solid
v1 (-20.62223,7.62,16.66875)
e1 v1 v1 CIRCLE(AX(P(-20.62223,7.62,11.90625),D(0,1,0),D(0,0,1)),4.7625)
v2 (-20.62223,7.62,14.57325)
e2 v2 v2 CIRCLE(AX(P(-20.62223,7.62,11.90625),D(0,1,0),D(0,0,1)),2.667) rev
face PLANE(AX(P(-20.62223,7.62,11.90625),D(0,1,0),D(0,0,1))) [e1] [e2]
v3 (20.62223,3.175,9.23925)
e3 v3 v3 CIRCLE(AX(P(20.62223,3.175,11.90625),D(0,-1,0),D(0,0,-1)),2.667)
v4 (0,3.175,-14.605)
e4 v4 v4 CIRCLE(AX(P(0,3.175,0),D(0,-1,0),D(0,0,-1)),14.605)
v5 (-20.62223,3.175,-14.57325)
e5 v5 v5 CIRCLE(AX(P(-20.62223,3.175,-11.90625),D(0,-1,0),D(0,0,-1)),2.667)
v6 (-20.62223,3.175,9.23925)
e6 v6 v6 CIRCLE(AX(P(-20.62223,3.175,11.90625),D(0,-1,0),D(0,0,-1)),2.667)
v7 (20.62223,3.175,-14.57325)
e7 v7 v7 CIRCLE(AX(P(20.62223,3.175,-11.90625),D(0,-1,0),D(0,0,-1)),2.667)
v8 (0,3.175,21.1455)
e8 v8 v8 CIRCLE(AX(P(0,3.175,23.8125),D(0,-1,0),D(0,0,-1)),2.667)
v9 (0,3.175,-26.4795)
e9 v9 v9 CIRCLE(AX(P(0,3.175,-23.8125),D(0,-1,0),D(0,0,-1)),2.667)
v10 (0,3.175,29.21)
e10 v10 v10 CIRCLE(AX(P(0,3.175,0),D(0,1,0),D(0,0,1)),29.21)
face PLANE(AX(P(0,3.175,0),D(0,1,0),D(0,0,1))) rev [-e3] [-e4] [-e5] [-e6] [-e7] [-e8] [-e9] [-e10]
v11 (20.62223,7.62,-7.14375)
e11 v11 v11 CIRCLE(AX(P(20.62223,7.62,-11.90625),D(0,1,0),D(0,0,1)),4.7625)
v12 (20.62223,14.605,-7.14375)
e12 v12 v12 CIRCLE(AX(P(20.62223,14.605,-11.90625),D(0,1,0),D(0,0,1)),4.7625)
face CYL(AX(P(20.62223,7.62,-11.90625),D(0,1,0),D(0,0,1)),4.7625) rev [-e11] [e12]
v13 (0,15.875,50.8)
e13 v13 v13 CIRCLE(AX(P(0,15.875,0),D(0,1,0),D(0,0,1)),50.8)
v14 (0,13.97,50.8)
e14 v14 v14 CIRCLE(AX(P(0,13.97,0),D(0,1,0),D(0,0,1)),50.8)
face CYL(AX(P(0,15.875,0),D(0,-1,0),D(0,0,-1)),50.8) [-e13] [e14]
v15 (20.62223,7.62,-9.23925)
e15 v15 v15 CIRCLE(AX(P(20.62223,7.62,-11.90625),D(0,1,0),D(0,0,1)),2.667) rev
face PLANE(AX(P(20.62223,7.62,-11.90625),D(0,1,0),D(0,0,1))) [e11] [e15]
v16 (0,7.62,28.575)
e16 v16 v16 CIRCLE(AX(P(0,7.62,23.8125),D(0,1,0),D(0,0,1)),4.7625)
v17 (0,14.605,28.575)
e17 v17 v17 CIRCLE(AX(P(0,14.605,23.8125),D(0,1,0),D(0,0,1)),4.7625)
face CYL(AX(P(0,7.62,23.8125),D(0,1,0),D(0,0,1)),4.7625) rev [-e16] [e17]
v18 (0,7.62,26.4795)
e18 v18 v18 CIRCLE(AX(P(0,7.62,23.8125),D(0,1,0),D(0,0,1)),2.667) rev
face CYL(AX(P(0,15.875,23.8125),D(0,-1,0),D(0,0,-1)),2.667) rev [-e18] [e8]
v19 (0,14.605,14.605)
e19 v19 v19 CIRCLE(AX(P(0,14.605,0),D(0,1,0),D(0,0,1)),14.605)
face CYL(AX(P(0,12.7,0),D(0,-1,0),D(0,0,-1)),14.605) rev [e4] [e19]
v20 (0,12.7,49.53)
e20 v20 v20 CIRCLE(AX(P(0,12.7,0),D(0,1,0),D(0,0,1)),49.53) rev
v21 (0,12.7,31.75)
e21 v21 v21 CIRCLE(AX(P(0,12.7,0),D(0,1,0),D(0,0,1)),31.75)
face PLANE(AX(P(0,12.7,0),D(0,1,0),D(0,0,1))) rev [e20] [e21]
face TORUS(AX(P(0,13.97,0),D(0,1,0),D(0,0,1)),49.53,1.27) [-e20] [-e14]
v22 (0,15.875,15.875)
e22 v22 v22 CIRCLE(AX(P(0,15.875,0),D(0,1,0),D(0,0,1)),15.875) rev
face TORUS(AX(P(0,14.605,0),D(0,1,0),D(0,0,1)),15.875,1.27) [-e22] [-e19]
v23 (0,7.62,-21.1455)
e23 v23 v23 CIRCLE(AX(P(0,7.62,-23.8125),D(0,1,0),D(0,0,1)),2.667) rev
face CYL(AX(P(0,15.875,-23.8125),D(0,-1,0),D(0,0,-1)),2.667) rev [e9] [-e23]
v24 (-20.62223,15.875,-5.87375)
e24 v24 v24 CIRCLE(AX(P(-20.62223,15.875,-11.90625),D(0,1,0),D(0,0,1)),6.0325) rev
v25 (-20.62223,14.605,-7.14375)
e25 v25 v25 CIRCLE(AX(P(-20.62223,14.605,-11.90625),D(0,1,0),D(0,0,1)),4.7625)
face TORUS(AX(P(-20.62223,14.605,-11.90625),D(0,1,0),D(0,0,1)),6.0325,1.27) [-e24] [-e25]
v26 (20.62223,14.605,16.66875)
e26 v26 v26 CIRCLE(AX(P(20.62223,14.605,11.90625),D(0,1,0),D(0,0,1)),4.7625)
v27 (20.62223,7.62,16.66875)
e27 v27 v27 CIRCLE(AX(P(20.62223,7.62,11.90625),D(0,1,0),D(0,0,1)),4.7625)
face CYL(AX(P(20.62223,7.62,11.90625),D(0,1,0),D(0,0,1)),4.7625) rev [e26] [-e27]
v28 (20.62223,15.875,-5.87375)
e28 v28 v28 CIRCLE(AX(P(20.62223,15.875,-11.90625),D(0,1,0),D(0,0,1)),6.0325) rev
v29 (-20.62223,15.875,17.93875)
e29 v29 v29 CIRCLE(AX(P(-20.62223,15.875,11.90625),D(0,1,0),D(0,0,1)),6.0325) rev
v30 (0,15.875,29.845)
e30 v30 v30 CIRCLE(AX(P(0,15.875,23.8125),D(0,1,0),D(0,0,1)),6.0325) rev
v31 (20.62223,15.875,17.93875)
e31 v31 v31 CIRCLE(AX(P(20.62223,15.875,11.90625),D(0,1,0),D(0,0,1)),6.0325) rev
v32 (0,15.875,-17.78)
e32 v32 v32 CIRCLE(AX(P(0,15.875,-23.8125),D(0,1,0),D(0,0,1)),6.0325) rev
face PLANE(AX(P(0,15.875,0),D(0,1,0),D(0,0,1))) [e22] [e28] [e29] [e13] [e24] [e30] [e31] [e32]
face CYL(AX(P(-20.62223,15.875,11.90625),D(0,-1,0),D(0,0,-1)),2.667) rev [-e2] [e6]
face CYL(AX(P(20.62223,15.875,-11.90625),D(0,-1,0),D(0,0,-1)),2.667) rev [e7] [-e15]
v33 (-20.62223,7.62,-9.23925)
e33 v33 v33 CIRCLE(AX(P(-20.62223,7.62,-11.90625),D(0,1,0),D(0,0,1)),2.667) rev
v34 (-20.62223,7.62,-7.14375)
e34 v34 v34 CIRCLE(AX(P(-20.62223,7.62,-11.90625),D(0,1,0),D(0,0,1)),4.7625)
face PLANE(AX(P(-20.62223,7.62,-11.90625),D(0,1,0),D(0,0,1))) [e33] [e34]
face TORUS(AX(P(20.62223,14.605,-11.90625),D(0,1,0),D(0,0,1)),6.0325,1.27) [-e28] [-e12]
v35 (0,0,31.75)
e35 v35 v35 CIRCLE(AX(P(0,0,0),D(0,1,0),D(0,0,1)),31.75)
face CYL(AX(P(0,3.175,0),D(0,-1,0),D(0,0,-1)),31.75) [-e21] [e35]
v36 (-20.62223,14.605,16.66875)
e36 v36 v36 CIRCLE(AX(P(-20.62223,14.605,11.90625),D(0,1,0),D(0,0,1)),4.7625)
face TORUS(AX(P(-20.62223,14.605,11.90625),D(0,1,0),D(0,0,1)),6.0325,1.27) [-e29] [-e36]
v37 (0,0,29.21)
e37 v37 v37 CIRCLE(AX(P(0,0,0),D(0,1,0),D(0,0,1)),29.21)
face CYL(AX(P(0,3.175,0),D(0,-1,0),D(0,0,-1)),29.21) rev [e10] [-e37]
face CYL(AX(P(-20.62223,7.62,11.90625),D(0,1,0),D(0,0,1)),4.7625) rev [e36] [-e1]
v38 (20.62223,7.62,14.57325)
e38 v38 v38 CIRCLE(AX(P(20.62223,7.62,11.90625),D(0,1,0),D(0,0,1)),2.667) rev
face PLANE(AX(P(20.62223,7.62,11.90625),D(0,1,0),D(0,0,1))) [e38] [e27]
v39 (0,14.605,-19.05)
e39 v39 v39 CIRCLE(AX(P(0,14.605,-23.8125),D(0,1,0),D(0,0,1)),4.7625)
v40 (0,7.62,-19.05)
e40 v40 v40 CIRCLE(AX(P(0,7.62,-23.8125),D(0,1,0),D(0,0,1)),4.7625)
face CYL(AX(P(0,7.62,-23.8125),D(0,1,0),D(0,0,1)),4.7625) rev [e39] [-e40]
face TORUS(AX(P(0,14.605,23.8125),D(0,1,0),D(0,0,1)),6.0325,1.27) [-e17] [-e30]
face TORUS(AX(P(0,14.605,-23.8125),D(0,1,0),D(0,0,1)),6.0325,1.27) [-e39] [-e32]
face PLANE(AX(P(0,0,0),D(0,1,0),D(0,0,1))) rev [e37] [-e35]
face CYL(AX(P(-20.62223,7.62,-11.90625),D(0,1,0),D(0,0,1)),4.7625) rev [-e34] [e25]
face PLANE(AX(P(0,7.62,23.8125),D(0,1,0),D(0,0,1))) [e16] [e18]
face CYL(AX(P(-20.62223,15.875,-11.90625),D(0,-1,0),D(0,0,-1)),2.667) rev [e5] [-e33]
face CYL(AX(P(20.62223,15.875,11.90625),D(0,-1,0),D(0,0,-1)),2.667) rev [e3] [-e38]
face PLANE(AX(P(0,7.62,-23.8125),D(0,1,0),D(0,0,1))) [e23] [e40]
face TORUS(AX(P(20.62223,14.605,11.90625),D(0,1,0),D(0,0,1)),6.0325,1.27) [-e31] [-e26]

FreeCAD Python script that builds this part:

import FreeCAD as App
import Part
import Sketcher
from FreeCAD import Vector
Q = App.Units.Quantity


def edges_at(feature, points):
    """Names of the edges that pass closest to the given points."""
    edges = feature.Shape.Edges
    near = lambda p: min(range(len(edges)), key=lambda i: edges[i].distToShape(Part.Vertex(*p))[0])
    return sorted({f"Edge{near(p) + 1}" for p in points})

doc = App.newDocument("Part")
body = doc.addObject("PartDesign::Body", "Body")

# Sketch on XZ plane
sketch1 = doc.addObject("Sketcher::SketchObject", "Sketch")
body.addObject(sketch1)
sketch1.AttachmentSupport = (doc.XZ_Plane, [""])
sketch1.MapMode = "FlatFace"
sketch1.addGeometry([
    Part.Circle(Vector(0, 0, 0), Vector(0, 0, 1), 32),
    Part.Circle(Vector(0, 0, 0), Vector(0, 0, 1), 29),
], False)
sketch1.addConstraint([
    Sketcher.Constraint("Coincident", 0, 3, -1, 1),
    Sketcher.Constraint("Coincident", 1, 3, -1, 1),
    Sketcher.Constraint("Diameter", 0, Q("2.5 in")),
    Sketcher.Constraint("Diameter", 1, Q("2.3 in")),
])
pad1 = doc.addObject("PartDesign::Pad", "Pad")
body.addObject(pad1)
pad1.Profile = sketch1
pad1.Length = Q("0.125 in")
pad1.Reversed = True

# Sketch on XZ plane
sketch2 = doc.addObject("Sketcher::SketchObject", "Sketch001")
body.addObject(sketch2)
sketch2.AttachmentSupport = (doc.XZ_Plane, [""])
sketch2.MapMode = "FlatFace"
sketch2.AttachmentOffset = App.Placement(Vector(0, 0, -0.125 * 25.4), App.Rotation())
sketch2.addGeometry(Part.Circle(Vector(0, 0, 0), Vector(0, 0, 1), 32), False)
sketch2.addConstraint([
    Sketcher.Constraint("Coincident", 0, 3, -1, 1),
    Sketcher.Constraint("Diameter", 0, Q("2.5 in")),
])
pad2 = doc.addObject("PartDesign::Pad", "Pad001")
body.addObject(pad2)
pad2.Profile = sketch2
pad2.Length = Q("0.375 in")
pad2.Reversed = True

# Sketch on XZ plane
sketch3 = doc.addObject("Sketcher::SketchObject", "Sketch002")
body.addObject(sketch3)
sketch3.AttachmentSupport = (doc.XZ_Plane, [""])
sketch3.MapMode = "FlatFace"
sketch3.AttachmentOffset = App.Placement(Vector(0, 0, -0.125 * 25.4), App.Rotation())
sketch3.addGeometry(Part.Circle(Vector(0, 0, 0), Vector(0, 0, 1), 15), False)
sketch3.addConstraint([
    Sketcher.Constraint("Coincident", 0, 3, -1, 1),
    Sketcher.Constraint("Diameter", 0, Q("1.15 in")),
])
pocket1 = doc.addObject("PartDesign::Pocket", "Pocket")
body.addObject(pocket1)
pocket1.Profile = sketch3
pocket1.Type = "ThroughAll"

# Sketch on XZ plane
sketch4 = doc.addObject("Sketcher::SketchObject", "Sketch003")
body.addObject(sketch4)
sketch4.AttachmentSupport = (doc.XZ_Plane, [""])
sketch4.MapMode = "FlatFace"
sketch4.AttachmentOffset = App.Placement(Vector(0, 0, -0.5 * 25.4), App.Rotation())
sketch4.addGeometry([
    Part.Circle(Vector(0, 0, 0), Vector(0, 0, 1), 51),
    Part.Circle(Vector(0, 0, 0), Vector(0, 0, 1), 15),
], False)
sketch4.addConstraint([
    Sketcher.Constraint("Coincident", 0, 3, -1, 1),
    Sketcher.Constraint("Coincident", 1, 3, -1, 1),
    Sketcher.Constraint("Diameter", 0, Q("4 in")),
    Sketcher.Constraint("Diameter", 1, Q("1.15 in")),
])
pad3 = doc.addObject("PartDesign::Pad", "Pad002")
body.addObject(pad3)
pad3.Profile = sketch4
pad3.Length = Q("0.125 in")
pad3.Reversed = True

# Sketch on XZ plane
sketch5 = doc.addObject("Sketcher::SketchObject", "Sketch004")
body.addObject(sketch5)
sketch5.AttachmentSupport = (doc.XZ_Plane, [""])
sketch5.MapMode = "FlatFace"
sketch5.AttachmentOffset = App.Placement(Vector(0, 0, -0.125 * 25.4), App.Rotation())
sketch5.addGeometry([
    Part.Circle(Vector(0, 23.8, 0), Vector(0, 0, 1), 2.7),  # 0
    Part.Circle(Vector(20.6, 11.9, 0), Vector(0, 0, 1), 2.7),  # 1
    Part.Circle(Vector(20.6, -11.9, 0), Vector(0, 0, 1), 2.7),  # 2
    Part.Circle(Vector(0, -23.8, 0), Vector(0, 0, 1), 2.7),  # 3
    Part.Circle(Vector(-20.6, -11.9, 0), Vector(0, 0, 1), 2.7),  # 4
    Part.Circle(Vector(-20.6, 11.9, 0), Vector(0, 0, 1), 2.7),  # 5
], False)
sketch5.addConstraint([
    Sketcher.Constraint("Equal", 0, 1),
    Sketcher.Constraint("Equal", 1, 2),
    Sketcher.Constraint("Equal", 2, 3),
    Sketcher.Constraint("Equal", 3, 4),
    Sketcher.Constraint("Equal", 4, 5),
    Sketcher.Constraint("Symmetric", 0, 3, 3, 3, -1, 1),
    Sketcher.Constraint("Symmetric", 1, 3, 4, 3, -1, 1),
    Sketcher.Constraint("Symmetric", 2, 3, 5, 3, -1, 1),
    Sketcher.Constraint("Symmetric", 2, 3, 4, 3, -2),
    Sketcher.Constraint("PointOnObject", 0, 3, -2),
    Sketcher.Constraint("Diameter", 0, Q("0.21 in")),
    Sketcher.Constraint("DistanceY", -1, 1, 0, 3, Q("0.9375 in")),
    Sketcher.Constraint("DistanceY", -1, 1, 1, 3, Q("0.46875 in")),
    Sketcher.Constraint("DistanceX", -1, 1, 1, 3, 20.62223),
])
pocket2 = doc.addObject("PartDesign::Pocket", "Pocket001")
body.addObject(pocket2)
pocket2.Profile = sketch5
pocket2.Type = "ThroughAll"

# Sketch on XZ plane
sketch6 = doc.addObject("Sketcher::SketchObject", "Sketch005")
body.addObject(sketch6)
sketch6.AttachmentSupport = (doc.XZ_Plane, [""])
sketch6.MapMode = "FlatFace"
sketch6.AttachmentOffset = App.Placement(Vector(0, 0, -0.625 * 25.4), App.Rotation())
sketch6.addGeometry([
    Part.Circle(Vector(20.6, 11.9, 0), Vector(0, 0, 1), 4.8),  # 0
    Part.Circle(Vector(0, 23.8, 0), Vector(0, 0, 1), 4.8),  # 1
    Part.Circle(Vector(-20.6, 11.9, 0), Vector(0, 0, 1), 4.8),  # 2
    Part.Circle(Vector(-20.6, -11.9, 0), Vector(0, 0, 1), 4.8),  # 3
    Part.Circle(Vector(0, -23.8, 0), Vector(0, 0, 1), 4.8),  # 4
    Part.Circle(Vector(20.6, -11.9, 0), Vector(0, 0, 1), 4.8),  # 5
], False)
sketch6.addConstraint([
    Sketcher.Constraint("Equal", 0, 1),
    Sketcher.Constraint("Equal", 1, 2),
    Sketcher.Constraint("Equal", 2, 3),
    Sketcher.Constraint("Equal", 3, 4),
    Sketcher.Constraint("Equal", 4, 5),
    Sketcher.Constraint("Symmetric", 0, 3, 3, 3, -1, 1),
    Sketcher.Constraint("Symmetric", 1, 3, 4, 3, -1, 1),
    Sketcher.Constraint("Symmetric", 2, 3, 5, 3, -1, 1),
    Sketcher.Constraint("Symmetric", 0, 3, 2, 3, -2),
    Sketcher.Constraint("PointOnObject", 1, 3, -2),
    Sketcher.Constraint("Diameter", 0, Q("0.375 in")),
    Sketcher.Constraint("DistanceY", -1, 1, 0, 3, Q("0.46875 in")),
    Sketcher.Constraint("DistanceY", -1, 1, 1, 3, Q("0.9375 in")),
    Sketcher.Constraint("DistanceX", -1, 1, 0, 3, 20.62223),
])
pocket3 = doc.addObject("PartDesign::Pocket", "Pocket002")
body.addObject(pocket3)
pocket3.Profile = sketch6
pocket3.Length = Q("0.325 in")
pocket3.Reversed = True
doc.recompute()

fillet = doc.addObject("PartDesign::Fillet", "Fillet")
body.addObject(fillet)
fillet.Base = (pocket3, edges_at(pocket3, [
    (-50.8, 12.7, 0),
    (-14.605, 15.875, 0),
    (15.86, 15.875, -11.906),
    (-4.763, 15.875, -23.812),
    (-25.385, 15.875, -11.906),
    (-25.385, 15.875, 11.906),
    (-4.763, 15.875, 23.812),
    (15.86, 15.875, 11.906),
]))
fillet.Radius = Q("0.05 in")

doc.recompute()
